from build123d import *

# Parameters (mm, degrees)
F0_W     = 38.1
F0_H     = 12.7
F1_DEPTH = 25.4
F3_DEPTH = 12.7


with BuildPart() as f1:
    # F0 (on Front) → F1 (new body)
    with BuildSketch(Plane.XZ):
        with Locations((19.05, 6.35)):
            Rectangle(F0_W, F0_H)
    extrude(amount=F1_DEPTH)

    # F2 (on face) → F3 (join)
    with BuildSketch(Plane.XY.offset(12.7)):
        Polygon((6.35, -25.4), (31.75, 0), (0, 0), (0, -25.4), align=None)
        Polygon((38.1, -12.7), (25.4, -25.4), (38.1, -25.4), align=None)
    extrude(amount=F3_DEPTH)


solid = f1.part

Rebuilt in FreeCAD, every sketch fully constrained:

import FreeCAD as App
import Part
import Sketcher
from FreeCAD import Vector
Q = App.Units.Quantity


def add_polygon(sketch, points):
    """Adds a closed chain of lines whose ends are joined by coincident constraints."""
    first, n = sketch.GeometryCount, len(points)
    for a, b in zip(points, points[1:] + points[:1]):
        sketch.addGeometry(Part.LineSegment(App.Vector(*a, 0), App.Vector(*b, 0)), False)
    for i in range(n):
        sketch.addConstraint(Sketcher.Constraint("Coincident", first + i, 2, first + (i + 1) % n, 1))

doc = App.newDocument("Part")
body = doc.addObject("PartDesign::Body", "Body")

sketch1 = body.newObject("Sketcher::SketchObject", "Sketch")
sketch1.AttachmentSupport = (doc.getObject("XZ_Plane"), [""])
sketch1.MapMode = "FlatFace"
add_polygon(sketch1, [(0, 13), (0, 0), (38, 0), (38, 13)])
sketch1.addConstraint(Sketcher.Constraint("Vertical", 0))
sketch1.addConstraint(Sketcher.Constraint("Horizontal", 1))
sketch1.addConstraint(Sketcher.Constraint("Vertical", 2))
sketch1.addConstraint(Sketcher.Constraint("Horizontal", 3))
sketch1.addConstraint(Sketcher.Constraint("Coincident", 0, 2, -1, 1))
sketch1.addConstraint(Sketcher.Constraint("DistanceX", 1, 1, 1, 2, Q("1.5 in")))
sketch1.addConstraint(Sketcher.Constraint("DistanceY", 0, 2, 0, 1, Q("0.5 in")))
pad1 = body.newObject("PartDesign::Pad", "Pad")
pad1.Profile = sketch1
pad1.Length = Q("1 in")

sketch2 = body.newObject("Sketcher::SketchObject", "Sketch001")
sketch2.AttachmentSupport = (doc.getObject("XY_Plane"), [""])
sketch2.MapMode = "FlatFace"
sketch2.AttachmentOffset = App.Placement(Vector(0, 0, 0.5 * 25.4), App.Rotation())
add_polygon(sketch2, [(6, -25), (32, 0), (0, 0), (0, -25)])
add_polygon(sketch2, [(38, -13), (25, -25), (38, -25)])
sketch2.addConstraint(Sketcher.Constraint("Horizontal", 1))
sketch2.addConstraint(Sketcher.Constraint("Vertical", 2))
sketch2.addConstraint(Sketcher.Constraint("Horizontal", 3))
sketch2.addConstraint(Sketcher.Constraint("Horizontal", 5))
sketch2.addConstraint(Sketcher.Constraint("Vertical", 6))
sketch2.addConstraint(Sketcher.Constraint("Coincident", 1, 2, -1, 1))
sketch2.addConstraint(Sketcher.Constraint("Parallel", 0, 4))
sketch2.addConstraint(Sketcher.Constraint("Horizontal", 3, 2, 4, 2))
sketch2.addConstraint(Sketcher.Constraint("Equal", 5, 6))
sketch2.addConstraint(Sketcher.Constraint("DistanceY", 2, 2, 2, 1, Q("1 in")))
sketch2.addConstraint(Sketcher.Constraint("DistanceX", 5, 1, 5, 2, Q("0.5 in")))
sketch2.addConstraint(Sketcher.Constraint("DistanceX", -1, 1, 4, 2, Q("1 in")))
sketch2.addConstraint(Sketcher.Constraint("DistanceX", 1, 2, 1, 1, Q("1.25 in")))
pad2 = body.newObject("PartDesign::Pad", "Pad001")
pad2.Profile = sketch2
pad2.Length = Q("0.5 in")

doc.recompute()
